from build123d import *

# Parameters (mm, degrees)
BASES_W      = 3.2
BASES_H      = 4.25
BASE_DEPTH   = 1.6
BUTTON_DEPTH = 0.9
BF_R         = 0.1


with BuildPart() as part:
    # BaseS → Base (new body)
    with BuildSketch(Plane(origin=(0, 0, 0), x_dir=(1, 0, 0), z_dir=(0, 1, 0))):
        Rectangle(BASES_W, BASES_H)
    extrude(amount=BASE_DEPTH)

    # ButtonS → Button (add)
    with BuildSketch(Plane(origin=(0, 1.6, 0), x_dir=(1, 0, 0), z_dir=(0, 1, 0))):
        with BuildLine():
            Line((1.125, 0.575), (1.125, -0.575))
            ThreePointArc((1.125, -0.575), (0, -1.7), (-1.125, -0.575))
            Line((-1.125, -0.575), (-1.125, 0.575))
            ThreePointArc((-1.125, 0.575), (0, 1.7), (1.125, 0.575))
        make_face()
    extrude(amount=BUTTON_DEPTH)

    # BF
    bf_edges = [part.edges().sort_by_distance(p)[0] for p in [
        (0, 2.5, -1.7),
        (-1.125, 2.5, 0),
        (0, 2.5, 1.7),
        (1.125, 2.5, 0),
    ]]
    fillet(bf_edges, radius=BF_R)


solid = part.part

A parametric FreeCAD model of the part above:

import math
import FreeCAD as App
import Part
import Sketcher
Q = App.Units.Quantity


def edges_at(feature, points):
    """Names of the edges that pass closest to the given points."""
    edges = feature.Shape.Edges
    near = lambda p: min(range(len(edges)), key=lambda i: edges[i].distToShape(Part.Vertex(*p))[0])
    return sorted({f"Edge{near(p) + 1}" for p in points})

doc = App.newDocument("Part")
params = doc.addObject("Spreadsheet::Sheet", "Params")
for row, (alias, value) in enumerate([
    ("sketch1_width", "3.2 mm"),
    ("sketch1_height", "4.25 mm"),
    ("pad1_length", "1.6 mm"),
    ("sketch2_height", "1.15 mm"),
    ("pad2_length", "0.9 mm"),
    ("fillet_radius", "0.1 mm"),
], start=1):
    params.set(f"A{row}", alias)
    params.set(f"B{row}", "=" + value)
    params.setAlias(f"B{row}", alias)

body = doc.addObject("PartDesign::Body", "Body")

# Sketch on XZ plane
sketch1 = body.newObject("Sketcher::SketchObject", "Sketch")
sketch1.AttachmentSupport = (doc.getObject("XZ_Plane"), [""])
sketch1.MapMode = "FlatFace"
sketch1.addGeometry([
    Part.LineSegment(App.Vector(-1.6, -2.1, 0), App.Vector(-1.6, 2.1, 0)),
    Part.LineSegment(App.Vector(-1.6, 2.1, 0), App.Vector(1.6, 2.1, 0)),
    Part.LineSegment(App.Vector(1.6, 2.1, 0), App.Vector(1.6, -2.1, 0)),
    Part.LineSegment(App.Vector(1.6, -2.1, 0), App.Vector(-1.6, -2.1, 0)),
], False)
sketch1.addConstraint([
    Sketcher.Constraint("Coincident", 0, 2, 1, 1),
    Sketcher.Constraint("Coincident", 1, 2, 2, 1),
    Sketcher.Constraint("Coincident", 2, 2, 3, 1),
    Sketcher.Constraint("Coincident", 3, 2, 0, 1),
    Sketcher.Constraint("Vertical", 0),
    Sketcher.Constraint("Horizontal", 1),
    Sketcher.Constraint("Vertical", 2),
    Sketcher.Constraint("Horizontal", 3),
    Sketcher.Constraint("Symmetric", 0, 2, 2, 2, -1, 1),
    Sketcher.Constraint("DistanceX", 1, 1, 1, 2, Q("3.2 mm")),
    Sketcher.Constraint("DistanceY", 0, 1, 0, 2, Q("4.25 mm")),
])
sketch1.setExpression("Constraints[9]", "Params.sketch1_width")
sketch1.setExpression("Constraints[10]", "Params.sketch1_height")
pad1 = body.newObject("PartDesign::Pad", "Pad")
pad1.Profile = sketch1
pad1.setExpression("Length", "Params.pad1_length")
pad1.Reversed = True

# Sketch on XZ plane
sketch2 = body.newObject("Sketcher::SketchObject", "Sketch001")
sketch2.AttachmentSupport = (doc.getObject("XZ_Plane"), [""])
sketch2.MapMode = "FlatFace"
sketch2.AttachmentOffset = App.Placement(App.Vector(0, 0, -1.6), App.Rotation())
sketch2.addGeometry([
    Part.LineSegment(App.Vector(1.1, 0.6, 0), App.Vector(1.1, -0.6, 0)),
    Part.ArcOfCircle(Part.Circle(App.Vector(0, -0.6, 0), App.Vector(0, 0, 1), 1.1), math.radians(180), math.radians(360)),
    Part.LineSegment(App.Vector(-1.1, -0.6, 0), App.Vector(-1.1, 0.6, 0)),
    Part.ArcOfCircle(Part.Circle(App.Vector(0, 0.6, 0), App.Vector(0, 0, 1), 1.1), math.radians(0), math.radians(180)),
], False)
sketch2.addConstraint([
    Sketcher.Constraint("Tangent", 0, 2, 1, 2),
    Sketcher.Constraint("Tangent", 1, 1, 2, 1),
    Sketcher.Constraint("Tangent", 2, 2, 3, 2),
    Sketcher.Constraint("Tangent", 3, 1, 0, 1),
    Sketcher.Constraint("Vertical", 0),
    Sketcher.Constraint("Vertical", 2),
    Sketcher.Constraint("Symmetric", 1, 3, 3, 3, -1, 1),
    Sketcher.Constraint("Radius", 1, Q("1.125 mm")),
    Sketcher.Constraint("DistanceY", 0, 2, 0, 1, Q("1.15 mm")),
])
sketch2.setExpression("Constraints[8]", "Params.sketch2_height")
pad2 = body.newObject("PartDesign::Pad", "Pad001")
pad2.Profile = sketch2
pad2.setExpression("Length", "Params.pad2_length")
pad2.Reversed = True
doc.recompute()

fillet = body.newObject("PartDesign::Fillet", "Fillet")
fillet.Base = (pad2, edges_at(pad2, [
    (0, 2.5, -1.7),
    (-1.125, 2.5, 0),
    (0, 2.5, 1.7),
    (1.125, 2.5, 0),
]))
fillet.setExpression("Radius", "Params.fillet_radius")

doc.recompute()
